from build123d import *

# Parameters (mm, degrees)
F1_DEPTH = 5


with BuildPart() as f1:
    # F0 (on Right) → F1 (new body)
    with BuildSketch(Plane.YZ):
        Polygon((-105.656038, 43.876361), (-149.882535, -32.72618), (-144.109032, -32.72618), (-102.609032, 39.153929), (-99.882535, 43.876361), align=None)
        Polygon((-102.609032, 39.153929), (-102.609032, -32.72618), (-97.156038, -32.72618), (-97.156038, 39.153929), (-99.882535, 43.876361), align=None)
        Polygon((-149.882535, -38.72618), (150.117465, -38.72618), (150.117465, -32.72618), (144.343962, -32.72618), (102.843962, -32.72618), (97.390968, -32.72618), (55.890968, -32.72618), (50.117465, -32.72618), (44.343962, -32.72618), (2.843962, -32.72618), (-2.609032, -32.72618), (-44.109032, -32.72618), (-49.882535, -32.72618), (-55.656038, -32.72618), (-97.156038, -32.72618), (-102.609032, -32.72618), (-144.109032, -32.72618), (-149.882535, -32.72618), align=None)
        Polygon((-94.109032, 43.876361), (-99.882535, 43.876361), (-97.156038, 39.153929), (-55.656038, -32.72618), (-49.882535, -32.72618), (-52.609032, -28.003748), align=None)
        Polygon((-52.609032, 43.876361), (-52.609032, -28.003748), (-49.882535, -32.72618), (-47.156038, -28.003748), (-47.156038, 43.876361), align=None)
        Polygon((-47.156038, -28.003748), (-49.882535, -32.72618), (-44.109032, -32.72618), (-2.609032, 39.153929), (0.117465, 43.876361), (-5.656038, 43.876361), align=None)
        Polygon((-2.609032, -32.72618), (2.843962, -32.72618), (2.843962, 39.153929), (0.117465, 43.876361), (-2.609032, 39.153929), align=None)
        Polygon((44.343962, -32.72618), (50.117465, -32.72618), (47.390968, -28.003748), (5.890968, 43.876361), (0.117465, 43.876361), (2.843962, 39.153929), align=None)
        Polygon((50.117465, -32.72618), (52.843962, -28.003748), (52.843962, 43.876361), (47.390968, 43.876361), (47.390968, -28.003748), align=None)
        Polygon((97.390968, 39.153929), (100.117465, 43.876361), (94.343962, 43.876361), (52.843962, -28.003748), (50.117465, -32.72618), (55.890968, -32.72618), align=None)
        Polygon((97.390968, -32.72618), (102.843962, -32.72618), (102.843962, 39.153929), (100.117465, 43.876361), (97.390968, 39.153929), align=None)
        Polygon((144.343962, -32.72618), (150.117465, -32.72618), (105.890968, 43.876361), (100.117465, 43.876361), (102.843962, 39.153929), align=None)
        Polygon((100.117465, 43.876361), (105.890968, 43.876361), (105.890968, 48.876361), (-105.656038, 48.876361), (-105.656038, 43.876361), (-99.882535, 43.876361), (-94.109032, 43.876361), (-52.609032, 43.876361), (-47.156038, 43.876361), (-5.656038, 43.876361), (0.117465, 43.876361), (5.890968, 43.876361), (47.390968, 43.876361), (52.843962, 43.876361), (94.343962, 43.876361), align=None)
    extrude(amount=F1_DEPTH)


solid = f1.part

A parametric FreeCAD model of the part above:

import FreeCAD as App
import Part
import Sketcher
Q = App.Units.Quantity


def add_polygon(sketch, points):
    """Adds a closed chain of lines whose ends are joined by coincident constraints."""
    first, n = sketch.GeometryCount, len(points)
    for a, b in zip(points, points[1:] + points[:1]):
        sketch.addGeometry(Part.LineSegment(App.Vector(*a, 0), App.Vector(*b, 0)), False)
    for i in range(n):
        sketch.addConstraint(Sketcher.Constraint("Coincident", first + i, 2, first + (i + 1) % n, 1))

doc = App.newDocument("Part")
params = doc.addObject("Spreadsheet::Sheet", "Params")
for row, (alias, value) in enumerate([
    ("sketch1_width", "300 mm"),
    ("sketch1_height", "6 mm"),
    ("sketch1_height2", "5 mm"),
    ("sketch1_length", "83 mm"),
    ("pad1_length", "5 mm"),
], start=1):
    params.set(f"A{row}", alias)
    params.set(f"B{row}", "=" + value)
    params.setAlias(f"B{row}", alias)

body = doc.addObject("PartDesign::Body", "Body")

# Sketch on YZ plane
sketch1 = body.newObject("Sketcher::SketchObject", "Sketch")
sketch1.AttachmentSupport = (doc.getObject("YZ_Plane"), [""])
sketch1.MapMode = "FlatFace"
add_polygon(sketch1, [(-106, 44), (-150, -33), (-150, -39), (150, -39), (150, -33), (106, 44), (106, 49), (-106, 49)])  # lines 0-7
add_polygon(sketch1, [(94, 44), (53, -28), (53, 44)])  # lines 8-10
add_polygon(sketch1, [(47, 44), (47, -28), (6, 44)])  # lines 11-13
add_polygon(sketch1, [(-6, 44), (-47, -28), (-47, 44)])  # lines 14-16
add_polygon(sketch1, [(-53, 44), (-53, -28), (-94, 44)])  # lines 17-19
add_polygon(sketch1, [(144, -33), (103, -33), (103, 39)])  # lines 20-22
add_polygon(sketch1, [(97, -33), (56, -33), (97, 39)])  # lines 23-25
add_polygon(sketch1, [(44, -33), (3, -33), (3, 39)])  # lines 26-28
add_polygon(sketch1, [(-3, -33), (-44, -33), (-3, 39)])  # lines 29-31
add_polygon(sketch1, [(-56, -33), (-97, -33), (-97, 39)])  # lines 32-34
add_polygon(sketch1, [(-144, -33), (-103, 39), (-103, -33)])  # lines 35-37
sketch1.addConstraint([
    Sketcher.Constraint("Vertical", 1),
    Sketcher.Constraint("Horizontal", 2),
    Sketcher.Constraint("Vertical", 3),
    Sketcher.Constraint("Vertical", 5),
    Sketcher.Constraint("Horizontal", 6),
    Sketcher.Constraint("Vertical", 7),
    Sketcher.Constraint("Vertical", 9),
    Sketcher.Constraint("Horizontal", 10),
    Sketcher.Constraint("Vertical", 11),
    Sketcher.Constraint("Horizontal", 13),
    Sketcher.Constraint("Vertical", 15),
    Sketcher.Constraint("Horizontal", 16),
    Sketcher.Constraint("Vertical", 17),
    Sketcher.Constraint("Horizontal", 19),
    Sketcher.Constraint("Horizontal", 20),
    Sketcher.Constraint("Vertical", 21),
    Sketcher.Constraint("Horizontal", 23),
    Sketcher.Constraint("Vertical", 25),
    Sketcher.Constraint("Horizontal", 26),
    Sketcher.Constraint("Vertical", 27),
    Sketcher.Constraint("Horizontal", 29),
    Sketcher.Constraint("Vertical", 31),
    Sketcher.Constraint("Horizontal", 32),
    Sketcher.Constraint("Vertical", 33),
    Sketcher.Constraint("Vertical", 36),
    Sketcher.Constraint("Horizontal", 37),
    Sketcher.Constraint("Parallel", 0, 8),
    Sketcher.Constraint("Parallel", 4, 12),
    Sketcher.Constraint("Parallel", 8, 14),
    Sketcher.Constraint("Parallel", 12, 18),
    Sketcher.Constraint("Parallel", 18, 22),
    Sketcher.Constraint("Parallel", 14, 24),
    Sketcher.Constraint("Parallel", 22, 28),
    Sketcher.Constraint("Parallel", 24, 30),
    Sketcher.Constraint("Parallel", 28, 34),
    Sketcher.Constraint("Parallel", 30, 35),
    Sketcher.Constraint("Horizontal", 0, 2, 3, 2),
    Sketcher.Constraint("Horizontal", 4, 2, 7, 2),
    Sketcher.Constraint("Horizontal", 7, 2, 9, 2),
    Sketcher.Constraint("Horizontal", 8, 2, 11, 2),
    Sketcher.Constraint("Horizontal", 10, 2, 12, 2),
    Sketcher.Constraint("Horizontal", 11, 2, 14, 2),
    Sketcher.Constraint("Horizontal", 13, 2, 15, 2),
    Sketcher.Constraint("Horizontal", 14, 2, 17, 2),
    Sketcher.Constraint("Horizontal", 16, 2, 18, 2),
    Sketcher.Constraint("Horizontal", 3, 2, 20, 2),
    Sketcher.Constraint("Horizontal", 22, 2, 23, 2),
    Sketcher.Constraint("Horizontal", 21, 2, 24, 2),
    Sketcher.Constraint("Horizontal", 25, 2, 26, 2),
    Sketcher.Constraint("Horizontal", 24, 2, 27, 2),
    Sketcher.Constraint("Horizontal", 28, 2, 29, 2),
    Sketcher.Constraint("Horizontal", 27, 2, 30, 2),
    Sketcher.Constraint("Horizontal", 31, 2, 32, 2),
    Sketcher.Constraint("Horizontal", 30, 2, 33, 2),
    Sketcher.Constraint("Horizontal", 33, 2, 35, 2),
    Sketcher.Constraint("Horizontal", 34, 2, 36, 2),
    Sketcher.Constraint("Equal", 10, 13),
    Sketcher.Constraint("Equal", 19, 20),
    Sketcher.Constraint("DistanceX", 2, 1, 2, 2, 300.0),
    Sketcher.Constraint("DistanceY", 1, 2, 1, 1, 6.0),
    Sketcher.Constraint("DistanceY", 5, 1, 5, 2, 5.0),
    Sketcher.Constraint("Angle", 0, Q("-120 deg")),
    Sketcher.Constraint("Distance", 8, 83.0),
    Sketcher.Constraint("DistanceX", 12, 2, 4, 2, 100.0),
    Sketcher.Constraint("DistanceX", 14, 2, 8, 2, 100.0),
    Sketcher.Constraint("DistanceX", 8, 2, 20, 2, 50.0),
    Sketcher.Constraint("DistanceX", 11, 2, 25, 2, 50.0),
    Sketcher.Constraint("DistanceX", 26, 2, 8, 2, 50.0),
    Sketcher.Constraint("DistanceX", 30, 2, 13, 2, 50.0),
    Sketcher.Constraint("DistanceX", 32, 2, 14, 2, 50.0),
    Sketcher.Constraint("DistanceX", 35, 2, 19, 2, 50.0),
    Sketcher.Constraint("DistanceX", 7, 2, 8, 2, 158.5),
    Sketcher.Constraint("DistanceX", 17, 2, 12, 2, 58.5),
    Sketcher.Constraint("DistanceX", 6, 2, 6, 1, 211.547006),
    Sketcher.Constraint("DistanceY", 0, 2, -1, 1, 32.72618),
    Sketcher.Constraint("DistanceX", -1, 1, 4, 2, 105.890968),
])
sketch1.setExpression("Constraints[96]", "Params.sketch1_width")
sketch1.setExpression("Constraints[97]", "Params.sketch1_height")
sketch1.setExpression("Constraints[98]", "Params.sketch1_height2")
sketch1.setExpression("Constraints[100]", "Params.sketch1_length")
pad1 = body.newObject("PartDesign::Pad", "Pad")
pad1.Profile = sketch1
pad1.setExpression("Length", "Params.pad1_length")

doc.recompute()
